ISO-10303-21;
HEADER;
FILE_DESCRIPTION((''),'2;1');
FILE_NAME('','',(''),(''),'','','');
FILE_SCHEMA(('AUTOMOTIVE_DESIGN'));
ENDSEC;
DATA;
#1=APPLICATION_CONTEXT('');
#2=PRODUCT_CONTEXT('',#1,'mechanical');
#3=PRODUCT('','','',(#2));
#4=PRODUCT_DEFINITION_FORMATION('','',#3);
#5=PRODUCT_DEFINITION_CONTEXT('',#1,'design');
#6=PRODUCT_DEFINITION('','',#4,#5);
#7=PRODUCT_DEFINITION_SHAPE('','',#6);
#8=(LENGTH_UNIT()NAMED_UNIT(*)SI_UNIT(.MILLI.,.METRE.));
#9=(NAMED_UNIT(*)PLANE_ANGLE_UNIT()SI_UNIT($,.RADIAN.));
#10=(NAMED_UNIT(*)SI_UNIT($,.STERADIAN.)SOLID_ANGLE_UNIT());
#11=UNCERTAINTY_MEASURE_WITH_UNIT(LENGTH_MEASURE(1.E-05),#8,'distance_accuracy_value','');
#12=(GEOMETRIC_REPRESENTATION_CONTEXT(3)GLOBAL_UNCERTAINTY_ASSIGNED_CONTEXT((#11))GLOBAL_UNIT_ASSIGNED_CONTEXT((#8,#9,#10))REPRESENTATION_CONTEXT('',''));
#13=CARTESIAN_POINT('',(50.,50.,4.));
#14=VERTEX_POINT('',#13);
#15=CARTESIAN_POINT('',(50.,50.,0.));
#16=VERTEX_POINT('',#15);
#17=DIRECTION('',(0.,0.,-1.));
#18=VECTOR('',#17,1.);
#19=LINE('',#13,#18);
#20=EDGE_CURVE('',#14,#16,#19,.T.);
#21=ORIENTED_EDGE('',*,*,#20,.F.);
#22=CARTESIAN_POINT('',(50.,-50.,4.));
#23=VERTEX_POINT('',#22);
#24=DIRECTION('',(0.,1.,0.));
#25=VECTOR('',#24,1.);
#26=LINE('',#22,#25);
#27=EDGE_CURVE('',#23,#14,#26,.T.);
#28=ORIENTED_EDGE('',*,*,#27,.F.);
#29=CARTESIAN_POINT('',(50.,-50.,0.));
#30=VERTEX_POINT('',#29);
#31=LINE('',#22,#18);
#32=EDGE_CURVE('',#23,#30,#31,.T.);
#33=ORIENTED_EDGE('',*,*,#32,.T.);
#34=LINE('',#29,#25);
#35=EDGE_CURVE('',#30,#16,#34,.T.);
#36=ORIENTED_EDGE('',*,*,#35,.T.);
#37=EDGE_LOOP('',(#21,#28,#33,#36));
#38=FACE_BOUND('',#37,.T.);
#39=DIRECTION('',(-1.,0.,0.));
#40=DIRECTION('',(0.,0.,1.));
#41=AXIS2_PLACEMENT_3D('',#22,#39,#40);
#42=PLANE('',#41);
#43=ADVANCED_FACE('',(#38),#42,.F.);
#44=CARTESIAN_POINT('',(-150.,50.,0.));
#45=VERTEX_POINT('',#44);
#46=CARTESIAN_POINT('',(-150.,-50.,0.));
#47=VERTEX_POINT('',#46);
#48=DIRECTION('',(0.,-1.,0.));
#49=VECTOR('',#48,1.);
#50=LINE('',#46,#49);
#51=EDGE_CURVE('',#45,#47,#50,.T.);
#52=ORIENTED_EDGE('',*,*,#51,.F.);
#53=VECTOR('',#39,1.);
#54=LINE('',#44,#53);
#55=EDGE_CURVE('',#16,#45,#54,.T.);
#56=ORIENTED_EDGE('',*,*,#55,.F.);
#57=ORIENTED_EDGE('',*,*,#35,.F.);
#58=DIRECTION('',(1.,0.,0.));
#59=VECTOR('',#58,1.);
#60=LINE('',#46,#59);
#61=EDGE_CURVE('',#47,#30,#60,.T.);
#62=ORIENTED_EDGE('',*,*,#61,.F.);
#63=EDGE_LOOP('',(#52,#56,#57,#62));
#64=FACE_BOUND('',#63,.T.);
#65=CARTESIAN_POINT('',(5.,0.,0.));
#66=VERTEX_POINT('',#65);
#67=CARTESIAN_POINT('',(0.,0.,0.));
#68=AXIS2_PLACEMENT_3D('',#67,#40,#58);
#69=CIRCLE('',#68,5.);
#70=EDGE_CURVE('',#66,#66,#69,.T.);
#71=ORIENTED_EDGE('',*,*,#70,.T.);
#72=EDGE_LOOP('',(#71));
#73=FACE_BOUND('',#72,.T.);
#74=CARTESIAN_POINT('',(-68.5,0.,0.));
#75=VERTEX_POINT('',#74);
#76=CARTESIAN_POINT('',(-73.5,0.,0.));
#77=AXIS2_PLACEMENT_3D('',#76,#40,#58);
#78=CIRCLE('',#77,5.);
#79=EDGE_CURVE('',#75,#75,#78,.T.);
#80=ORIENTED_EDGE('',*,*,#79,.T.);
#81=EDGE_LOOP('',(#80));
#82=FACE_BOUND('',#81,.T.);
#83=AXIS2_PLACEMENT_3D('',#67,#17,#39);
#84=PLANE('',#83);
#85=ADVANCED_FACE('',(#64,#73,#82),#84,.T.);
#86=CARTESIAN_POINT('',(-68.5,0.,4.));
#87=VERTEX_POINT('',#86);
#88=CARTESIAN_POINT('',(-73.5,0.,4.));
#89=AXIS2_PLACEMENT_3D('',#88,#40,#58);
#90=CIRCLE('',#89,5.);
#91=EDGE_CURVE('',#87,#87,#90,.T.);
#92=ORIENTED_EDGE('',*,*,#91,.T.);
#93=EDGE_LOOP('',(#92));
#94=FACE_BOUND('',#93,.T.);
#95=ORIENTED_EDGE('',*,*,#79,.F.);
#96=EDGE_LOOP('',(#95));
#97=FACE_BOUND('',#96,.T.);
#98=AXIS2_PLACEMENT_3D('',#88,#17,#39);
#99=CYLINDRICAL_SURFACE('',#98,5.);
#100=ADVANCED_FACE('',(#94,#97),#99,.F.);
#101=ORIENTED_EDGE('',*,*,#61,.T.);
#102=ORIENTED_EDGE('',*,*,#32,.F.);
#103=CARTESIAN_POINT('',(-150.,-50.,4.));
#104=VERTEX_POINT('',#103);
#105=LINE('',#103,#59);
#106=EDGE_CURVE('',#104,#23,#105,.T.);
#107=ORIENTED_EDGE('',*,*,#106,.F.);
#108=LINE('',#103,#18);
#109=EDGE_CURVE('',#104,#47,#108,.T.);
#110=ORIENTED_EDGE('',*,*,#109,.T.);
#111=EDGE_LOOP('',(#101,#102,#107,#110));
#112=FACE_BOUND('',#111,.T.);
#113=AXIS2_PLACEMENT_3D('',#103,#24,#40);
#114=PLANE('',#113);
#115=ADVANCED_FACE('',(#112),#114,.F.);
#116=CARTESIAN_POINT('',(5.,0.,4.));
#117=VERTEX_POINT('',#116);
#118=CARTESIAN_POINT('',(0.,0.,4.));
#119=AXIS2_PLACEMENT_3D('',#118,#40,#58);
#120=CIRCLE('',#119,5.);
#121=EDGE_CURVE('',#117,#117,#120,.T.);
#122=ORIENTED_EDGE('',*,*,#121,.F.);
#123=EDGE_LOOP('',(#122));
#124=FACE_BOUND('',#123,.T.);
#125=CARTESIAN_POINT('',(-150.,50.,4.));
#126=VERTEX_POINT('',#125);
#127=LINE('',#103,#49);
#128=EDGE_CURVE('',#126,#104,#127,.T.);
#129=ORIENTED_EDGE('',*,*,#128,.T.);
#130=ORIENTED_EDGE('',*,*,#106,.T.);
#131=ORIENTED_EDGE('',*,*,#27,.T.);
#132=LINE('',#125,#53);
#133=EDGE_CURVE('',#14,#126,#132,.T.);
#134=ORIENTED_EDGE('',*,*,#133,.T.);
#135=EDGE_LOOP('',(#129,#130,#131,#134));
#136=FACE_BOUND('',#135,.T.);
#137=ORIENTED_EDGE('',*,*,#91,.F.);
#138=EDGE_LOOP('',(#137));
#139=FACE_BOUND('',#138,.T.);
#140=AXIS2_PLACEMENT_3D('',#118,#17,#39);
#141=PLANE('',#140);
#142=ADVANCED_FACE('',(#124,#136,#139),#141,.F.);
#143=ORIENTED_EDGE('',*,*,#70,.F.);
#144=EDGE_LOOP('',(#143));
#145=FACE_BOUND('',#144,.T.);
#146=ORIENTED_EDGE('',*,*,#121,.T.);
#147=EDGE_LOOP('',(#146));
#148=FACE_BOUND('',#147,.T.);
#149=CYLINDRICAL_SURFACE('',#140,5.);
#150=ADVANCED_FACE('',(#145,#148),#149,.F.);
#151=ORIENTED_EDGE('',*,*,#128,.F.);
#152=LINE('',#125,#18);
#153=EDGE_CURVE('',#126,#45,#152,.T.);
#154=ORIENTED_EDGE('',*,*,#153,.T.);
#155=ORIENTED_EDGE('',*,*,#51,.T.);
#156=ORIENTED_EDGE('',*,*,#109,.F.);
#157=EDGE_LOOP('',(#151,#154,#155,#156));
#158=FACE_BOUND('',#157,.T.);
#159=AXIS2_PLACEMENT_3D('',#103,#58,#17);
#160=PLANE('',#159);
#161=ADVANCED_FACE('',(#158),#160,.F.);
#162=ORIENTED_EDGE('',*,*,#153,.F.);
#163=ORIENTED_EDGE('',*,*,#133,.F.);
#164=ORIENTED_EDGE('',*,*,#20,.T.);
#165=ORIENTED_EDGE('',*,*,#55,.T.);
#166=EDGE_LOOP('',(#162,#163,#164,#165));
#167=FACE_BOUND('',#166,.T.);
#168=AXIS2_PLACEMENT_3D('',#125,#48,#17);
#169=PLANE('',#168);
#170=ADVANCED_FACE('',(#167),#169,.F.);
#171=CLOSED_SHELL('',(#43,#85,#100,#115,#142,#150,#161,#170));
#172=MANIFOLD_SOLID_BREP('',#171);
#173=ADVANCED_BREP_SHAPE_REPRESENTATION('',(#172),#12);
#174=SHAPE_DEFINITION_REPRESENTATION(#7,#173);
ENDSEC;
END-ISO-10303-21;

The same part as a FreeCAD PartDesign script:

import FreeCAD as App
import Part
import Sketcher
from FreeCAD import Vector


def add_polygon(sketch, points):
    """Adds a closed chain of lines whose ends are joined by coincident constraints."""
    first, n = sketch.GeometryCount, len(points)
    for a, b in zip(points, points[1:] + points[:1]):
        sketch.addGeometry(Part.LineSegment(App.Vector(*a, 0), App.Vector(*b, 0)), False)
    for i in range(n):
        sketch.addConstraint(Sketcher.Constraint("Coincident", first + i, 2, first + (i + 1) % n, 1))

doc = App.newDocument("Part")
body = doc.addObject("PartDesign::Body", "Body")

# Sketch on XY plane
sketch1 = body.newObject("Sketcher::SketchObject", "Sketch")
sketch1.AttachmentSupport = (doc.getObject("XY_Plane"), [""])
sketch1.MapMode = "FlatFace"
add_polygon(sketch1, [(-150, 50), (-150, -50), (50, -50), (50, 50)])  # lines 0-3
sketch1.addGeometry(Part.Circle(Vector(-73.5, 0, 0), Vector(0, 0, 1), 5), False)  # 4
sketch1.addGeometry(Part.Circle(Vector(0, 0, 0), Vector(0, 0, 1), 5), False)  # 5
sketch1.addConstraint([
    Sketcher.Constraint("Vertical", 0),
    Sketcher.Constraint("Horizontal", 1),
    Sketcher.Constraint("Vertical", 2),
    Sketcher.Constraint("Horizontal", 3),
    Sketcher.Constraint("Coincident", 5, 3, -1, 1),
    Sketcher.Constraint("Equal", 4, 5),
    Sketcher.Constraint("PointOnObject", 4, 3, -1),
    Sketcher.Constraint("Diameter", 4, 10.0),
    Sketcher.Constraint("DistanceX", 1, 1, 1, 2, 200.0),
    Sketcher.Constraint("DistanceY", 0, 2, 0, 1, 100.0),
    Sketcher.Constraint("DistanceX", 0, 2, -1, 1, 150.0),
    Sketcher.Constraint("DistanceY", 0, 2, -1, 1, 50.0),
    Sketcher.Constraint("DistanceX", 4, 3, -1, 1, 73.5),
])
pad1 = body.newObject("PartDesign::Pad", "Pad")
pad1.Profile = sketch1
pad1.Length = 4

doc.recompute()
